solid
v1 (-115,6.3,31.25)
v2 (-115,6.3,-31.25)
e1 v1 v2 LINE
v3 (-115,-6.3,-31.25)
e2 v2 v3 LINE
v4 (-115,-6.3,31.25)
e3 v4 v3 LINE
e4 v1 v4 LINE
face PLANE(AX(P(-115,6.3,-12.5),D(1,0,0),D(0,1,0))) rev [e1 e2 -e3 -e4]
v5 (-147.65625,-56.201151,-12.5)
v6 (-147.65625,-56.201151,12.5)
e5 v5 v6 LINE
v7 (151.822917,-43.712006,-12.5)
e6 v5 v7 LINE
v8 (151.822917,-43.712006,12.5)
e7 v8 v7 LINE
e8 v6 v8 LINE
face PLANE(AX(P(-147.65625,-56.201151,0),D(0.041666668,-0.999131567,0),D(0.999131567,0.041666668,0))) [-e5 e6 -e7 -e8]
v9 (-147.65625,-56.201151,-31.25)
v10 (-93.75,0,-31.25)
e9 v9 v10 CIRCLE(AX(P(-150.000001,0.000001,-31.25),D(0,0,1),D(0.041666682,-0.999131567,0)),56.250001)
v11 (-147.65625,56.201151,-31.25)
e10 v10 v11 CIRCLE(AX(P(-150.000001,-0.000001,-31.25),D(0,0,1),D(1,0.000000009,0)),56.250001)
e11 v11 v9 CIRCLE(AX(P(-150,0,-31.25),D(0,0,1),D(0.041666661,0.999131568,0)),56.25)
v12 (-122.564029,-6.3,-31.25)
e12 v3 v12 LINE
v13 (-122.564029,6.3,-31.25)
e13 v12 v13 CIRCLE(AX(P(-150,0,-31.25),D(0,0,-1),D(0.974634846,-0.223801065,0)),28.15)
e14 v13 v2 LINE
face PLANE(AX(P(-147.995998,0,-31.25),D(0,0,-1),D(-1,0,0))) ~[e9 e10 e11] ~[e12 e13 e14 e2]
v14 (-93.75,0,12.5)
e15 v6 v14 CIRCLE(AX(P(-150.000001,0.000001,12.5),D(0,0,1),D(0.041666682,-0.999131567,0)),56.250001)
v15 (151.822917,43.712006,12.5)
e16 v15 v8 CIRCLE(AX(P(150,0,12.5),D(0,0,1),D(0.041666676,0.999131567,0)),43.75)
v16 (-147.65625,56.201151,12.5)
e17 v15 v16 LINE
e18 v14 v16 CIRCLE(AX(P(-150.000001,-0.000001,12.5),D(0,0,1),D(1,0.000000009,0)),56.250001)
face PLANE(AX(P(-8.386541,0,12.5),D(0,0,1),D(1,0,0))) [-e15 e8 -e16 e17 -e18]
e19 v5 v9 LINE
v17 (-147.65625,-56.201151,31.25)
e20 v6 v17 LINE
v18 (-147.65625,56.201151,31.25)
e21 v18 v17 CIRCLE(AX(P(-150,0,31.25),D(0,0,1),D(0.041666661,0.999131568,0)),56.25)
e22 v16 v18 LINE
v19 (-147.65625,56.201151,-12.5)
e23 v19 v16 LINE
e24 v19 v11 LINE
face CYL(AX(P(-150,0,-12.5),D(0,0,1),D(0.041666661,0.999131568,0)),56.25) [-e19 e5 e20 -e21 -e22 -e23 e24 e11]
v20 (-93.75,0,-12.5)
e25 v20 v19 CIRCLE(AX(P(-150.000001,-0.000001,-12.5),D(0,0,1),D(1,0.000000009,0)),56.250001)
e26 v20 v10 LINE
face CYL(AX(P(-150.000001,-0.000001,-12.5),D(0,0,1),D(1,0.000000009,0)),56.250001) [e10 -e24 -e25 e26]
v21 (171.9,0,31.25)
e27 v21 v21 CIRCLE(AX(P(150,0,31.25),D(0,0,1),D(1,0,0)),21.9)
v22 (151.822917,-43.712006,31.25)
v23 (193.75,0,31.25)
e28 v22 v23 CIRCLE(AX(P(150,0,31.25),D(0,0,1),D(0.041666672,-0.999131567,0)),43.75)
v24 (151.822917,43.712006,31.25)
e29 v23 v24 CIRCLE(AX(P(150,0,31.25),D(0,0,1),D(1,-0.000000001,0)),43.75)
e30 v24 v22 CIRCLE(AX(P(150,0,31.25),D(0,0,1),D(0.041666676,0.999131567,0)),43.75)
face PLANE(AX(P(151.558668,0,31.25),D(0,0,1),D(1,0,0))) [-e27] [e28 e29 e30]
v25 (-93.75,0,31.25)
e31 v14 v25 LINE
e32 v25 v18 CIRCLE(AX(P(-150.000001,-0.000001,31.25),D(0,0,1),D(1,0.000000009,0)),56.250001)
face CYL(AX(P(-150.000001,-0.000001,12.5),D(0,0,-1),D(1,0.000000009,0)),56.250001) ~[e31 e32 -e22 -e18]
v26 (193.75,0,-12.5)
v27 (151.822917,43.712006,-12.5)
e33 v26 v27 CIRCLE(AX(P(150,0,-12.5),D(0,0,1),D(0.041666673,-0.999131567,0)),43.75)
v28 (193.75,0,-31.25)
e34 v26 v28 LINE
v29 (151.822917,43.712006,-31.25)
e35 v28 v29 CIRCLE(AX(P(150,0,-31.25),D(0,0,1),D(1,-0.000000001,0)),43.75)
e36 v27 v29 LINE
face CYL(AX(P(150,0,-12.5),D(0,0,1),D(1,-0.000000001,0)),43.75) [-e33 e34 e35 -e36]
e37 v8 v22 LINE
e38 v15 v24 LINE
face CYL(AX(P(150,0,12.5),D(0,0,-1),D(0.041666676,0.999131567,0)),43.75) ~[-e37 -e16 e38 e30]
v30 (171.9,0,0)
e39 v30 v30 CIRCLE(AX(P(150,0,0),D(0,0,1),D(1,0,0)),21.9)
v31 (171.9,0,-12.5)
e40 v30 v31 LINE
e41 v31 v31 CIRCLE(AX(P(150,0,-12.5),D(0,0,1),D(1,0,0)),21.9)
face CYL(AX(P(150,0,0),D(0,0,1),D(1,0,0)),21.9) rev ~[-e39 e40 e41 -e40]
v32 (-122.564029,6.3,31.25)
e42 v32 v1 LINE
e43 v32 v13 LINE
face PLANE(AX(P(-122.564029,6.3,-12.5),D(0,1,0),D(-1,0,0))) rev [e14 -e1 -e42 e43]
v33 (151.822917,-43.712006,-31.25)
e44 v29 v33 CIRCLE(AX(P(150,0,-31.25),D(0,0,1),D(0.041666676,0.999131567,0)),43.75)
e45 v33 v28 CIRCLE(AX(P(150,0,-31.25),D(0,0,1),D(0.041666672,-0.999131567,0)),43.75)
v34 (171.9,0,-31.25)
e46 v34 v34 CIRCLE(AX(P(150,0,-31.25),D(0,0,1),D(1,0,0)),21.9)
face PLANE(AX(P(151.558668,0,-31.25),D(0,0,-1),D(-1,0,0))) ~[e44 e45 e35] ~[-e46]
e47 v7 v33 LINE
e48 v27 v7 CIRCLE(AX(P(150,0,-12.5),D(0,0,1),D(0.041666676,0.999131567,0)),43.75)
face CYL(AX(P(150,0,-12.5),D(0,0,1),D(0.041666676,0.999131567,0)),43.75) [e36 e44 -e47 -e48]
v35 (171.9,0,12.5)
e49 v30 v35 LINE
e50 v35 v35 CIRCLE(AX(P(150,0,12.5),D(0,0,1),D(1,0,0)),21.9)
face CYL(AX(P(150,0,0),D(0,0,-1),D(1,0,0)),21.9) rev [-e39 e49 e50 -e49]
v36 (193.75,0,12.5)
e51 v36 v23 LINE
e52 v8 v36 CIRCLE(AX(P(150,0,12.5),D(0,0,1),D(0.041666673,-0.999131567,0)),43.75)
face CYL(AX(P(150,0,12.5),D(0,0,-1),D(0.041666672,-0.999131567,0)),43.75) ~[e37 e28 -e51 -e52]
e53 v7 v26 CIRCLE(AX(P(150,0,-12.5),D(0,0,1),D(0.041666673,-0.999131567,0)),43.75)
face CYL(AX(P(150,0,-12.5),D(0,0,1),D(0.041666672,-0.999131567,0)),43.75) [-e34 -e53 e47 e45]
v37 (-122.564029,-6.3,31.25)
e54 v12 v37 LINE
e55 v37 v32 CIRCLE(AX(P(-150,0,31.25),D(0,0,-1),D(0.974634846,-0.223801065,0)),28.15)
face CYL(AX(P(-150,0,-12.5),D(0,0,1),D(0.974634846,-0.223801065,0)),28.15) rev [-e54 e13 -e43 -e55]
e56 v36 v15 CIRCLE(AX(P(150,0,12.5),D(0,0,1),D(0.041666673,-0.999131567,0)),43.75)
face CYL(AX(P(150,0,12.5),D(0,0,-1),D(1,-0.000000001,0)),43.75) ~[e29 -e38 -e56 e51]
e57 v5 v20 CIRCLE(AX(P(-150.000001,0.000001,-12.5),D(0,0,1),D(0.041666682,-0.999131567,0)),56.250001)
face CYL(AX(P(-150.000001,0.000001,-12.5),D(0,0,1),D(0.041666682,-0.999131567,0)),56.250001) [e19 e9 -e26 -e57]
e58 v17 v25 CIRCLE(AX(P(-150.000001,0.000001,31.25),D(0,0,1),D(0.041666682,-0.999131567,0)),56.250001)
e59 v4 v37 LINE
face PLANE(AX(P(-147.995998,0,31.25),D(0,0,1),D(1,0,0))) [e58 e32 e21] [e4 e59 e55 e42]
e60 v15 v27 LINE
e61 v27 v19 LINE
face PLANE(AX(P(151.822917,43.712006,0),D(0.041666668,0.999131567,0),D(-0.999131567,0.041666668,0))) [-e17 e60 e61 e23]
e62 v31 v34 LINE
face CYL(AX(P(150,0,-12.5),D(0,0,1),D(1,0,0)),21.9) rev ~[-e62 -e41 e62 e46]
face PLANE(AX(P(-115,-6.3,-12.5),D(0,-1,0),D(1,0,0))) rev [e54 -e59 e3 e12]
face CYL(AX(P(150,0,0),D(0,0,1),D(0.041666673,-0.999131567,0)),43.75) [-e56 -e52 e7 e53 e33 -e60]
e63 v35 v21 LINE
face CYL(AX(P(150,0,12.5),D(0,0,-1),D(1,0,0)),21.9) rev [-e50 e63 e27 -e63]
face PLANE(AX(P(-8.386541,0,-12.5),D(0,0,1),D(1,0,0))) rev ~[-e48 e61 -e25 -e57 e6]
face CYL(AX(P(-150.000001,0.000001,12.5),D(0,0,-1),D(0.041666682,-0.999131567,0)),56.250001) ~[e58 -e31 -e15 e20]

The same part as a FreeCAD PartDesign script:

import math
import FreeCAD as App
import Part
import Sketcher
from FreeCAD import Vector
Q = App.Units.Quantity

doc = App.newDocument("Part")
body = doc.addObject("PartDesign::Body", "Body")

# Sketch on XY plane
sketch1 = doc.addObject("Sketcher::SketchObject", "Sketch")
body.addObject(sketch1)
sketch1.AttachmentSupport = (doc.XY_Plane, [""])
sketch1.MapMode = "FlatFace"
sketch1.addGeometry([
    Part.LineSegment(Vector(152, 44, 0), Vector(-148, 56, 0)),  # 0
    Part.ArcOfCircle(Part.Circle(Vector(-150, 0, 0), Vector(0, 0, 1), 56), math.radians(88), math.radians(272)),  # 1
    Part.LineSegment(Vector(-148, -56, 0), Vector(152, -44, 0)),  # 2
    Part.ArcOfCircle(Part.Circle(Vector(150, 0, 0), Vector(0, 0, 1), 44), math.radians(-88), math.radians(88)),  # 3
    Part.LineSegment(Vector(-115, -6, 0), Vector(-123, -6, 0)),  # 4
    Part.ArcOfCircle(Part.Circle(Vector(-150, 0, 0), Vector(0, 0, 1), 28), math.radians(13), math.radians(347)),  # 5
    Part.LineSegment(Vector(-123, 6, 0), Vector(-115, 6, 0)),  # 6
    Part.LineSegment(Vector(-115, 6, 0), Vector(-115, -6, 0)),  # 7
    Part.Circle(Vector(150, 0, 0), Vector(0, 0, 1), 22),  # 8
], False)
sketch1.addConstraint([
    Sketcher.Constraint("Tangent", 0, 2, 1, 1),
    Sketcher.Constraint("Tangent", 1, 2, 2, 1),
    Sketcher.Constraint("Tangent", 2, 2, 3, 1),
    Sketcher.Constraint("Tangent", 3, 2, 0, 1),
    Sketcher.Constraint("Coincident", 4, 2, 5, 2),
    Sketcher.Constraint("Coincident", 5, 1, 6, 1),
    Sketcher.Constraint("Coincident", 6, 2, 7, 1),
    Sketcher.Constraint("Coincident", 7, 2, 4, 1),
    Sketcher.Constraint("Horizontal", 4),
    Sketcher.Constraint("Horizontal", 6),
    Sketcher.Constraint("Vertical", 7),
    Sketcher.Constraint("Coincident", 5, 3, 1, 3),
    Sketcher.Constraint("Coincident", 8, 3, 3, 3),
    Sketcher.Constraint("Symmetric", 1, 3, 3, 3, -1, 1),
    Sketcher.Constraint("Symmetric", 4, 2, 5, 1, -1),
    Sketcher.Constraint("Diameter", 8, Q("43.8 mm")),
    Sketcher.Constraint("Radius", 1, Q("56.25 mm")),
    Sketcher.Constraint("Radius", 3, Q("43.75 mm")),
    Sketcher.Constraint("Radius", 5, Q("28.15 mm")),
    Sketcher.Constraint("DistanceY", 7, 2, 7, 1, Q("12.6 mm")),
    Sketcher.Constraint("DistanceX", 1, 3, -1, 1, Q("150 mm")),
    Sketcher.Constraint("DistanceX", 6, 2, -1, 1, Q("115 mm")),
])
pad1 = doc.addObject("PartDesign::Pad", "Pad")
body.addObject(pad1)
pad1.Profile = sketch1
pad1.Type = "TwoLengths"
pad1.Length = 12.5
pad1.Length2 = 12.5

# Sketch on XY plane
sketch2 = doc.addObject("Sketcher::SketchObject", "Sketch001")
body.addObject(sketch2)
sketch2.AttachmentSupport = (doc.XY_Plane, [""])
sketch2.MapMode = "FlatFace"
sketch2.AttachmentOffset = App.Placement(Vector(0, 0, 12.5), App.Rotation())
sketch2.addGeometry([
    Part.ArcOfCircle(Part.Circle(Vector(-150, 0, 0), Vector(0, 0, 1), 56), math.radians(-88), math.radians(0)),  # 0
    Part.ArcOfCircle(Part.Circle(Vector(-150, 0, 0), Vector(0, 0, 1), 56), math.radians(0), math.radians(88)),  # 1
    Part.ArcOfCircle(Part.Circle(Vector(-150, 0, 0), Vector(0, 0, 1), 56), math.radians(88), math.radians(272)),  # 2
    Part.LineSegment(Vector(-115, -6, 0), Vector(-123, -6, 0)),  # 3
    Part.ArcOfCircle(Part.Circle(Vector(-150, 0, 0), Vector(0, 0, 1), 28), math.radians(13), math.radians(347)),  # 4
    Part.LineSegment(Vector(-123, 6, 0), Vector(-115, 6, 0)),  # 5
    Part.LineSegment(Vector(-115, 6, 0), Vector(-115, -6, 0)),  # 6
    Part.ArcOfCircle(Part.Circle(Vector(150, 0, 0), Vector(0, 0, 1), 44), math.radians(0), math.radians(88)),  # 7
    Part.ArcOfCircle(Part.Circle(Vector(150, 0, 0), Vector(0, 0, 1), 44), math.radians(88), math.radians(272)),  # 8
    Part.ArcOfCircle(Part.Circle(Vector(150, 0, 0), Vector(0, 0, 1), 44), math.radians(-88), math.radians(0)),  # 9
    Part.Circle(Vector(150, 0, 0), Vector(0, 0, 1), 22),  # 10
], False)
sketch2.addConstraint([
    Sketcher.Constraint("Tangent", 0, 2, 1, 1),
    Sketcher.Constraint("Tangent", 1, 2, 2, 1),
    Sketcher.Constraint("Tangent", 2, 2, 0, 1),
    Sketcher.Constraint("Coincident", 3, 2, 4, 2),
    Sketcher.Constraint("Coincident", 4, 1, 5, 1),
    Sketcher.Constraint("Coincident", 5, 2, 6, 1),
    Sketcher.Constraint("Coincident", 6, 2, 3, 1),
    Sketcher.Constraint("Tangent", 7, 2, 8, 1),
    Sketcher.Constraint("Tangent", 8, 2, 9, 1),
    Sketcher.Constraint("Tangent", 9, 2, 7, 1),
    Sketcher.Constraint("Horizontal", 3),
    Sketcher.Constraint("Horizontal", 5),
    Sketcher.Constraint("Vertical", 6),
    Sketcher.Constraint("Coincident", 4, 3, 0, 3),
    Sketcher.Constraint("Coincident", 10, 3, 7, 3),
    Sketcher.Constraint("Symmetric", 0, 3, 7, 3, -1, 1),
    Sketcher.Constraint("Symmetric", 1, 2, 2, 2, -1),
    Sketcher.Constraint("PointOnObject", 0, 2, -1),
    Sketcher.Constraint("PointOnObject", 9, 2, -1),
    Sketcher.Constraint("Vertical", 3, 2, 4, 1),
    Sketcher.Constraint("Vertical", 7, 2, 8, 2),
    Sketcher.Constraint("Diameter", 10, Q("43.8 mm")),
    Sketcher.Constraint("Radius", 0, Q("56.250001 mm")),
    Sketcher.Constraint("Radius", 4, Q("28.15 mm")),
    Sketcher.Constraint("Radius", 7, Q("43.75 mm")),
    Sketcher.Constraint("DistanceY", 6, 2, 6, 1, Q("12.6 mm")),
    Sketcher.Constraint("DistanceX", 0, 3, -1, 1, Q("150.000001 mm")),
    Sketcher.Constraint("DistanceX", 5, 2, -1, 1, Q("115 mm")),
    Sketcher.Constraint("DistanceX", 1, 2, -1, 1, Q("147.65625 mm")),
    Sketcher.Constraint("DistanceY", 8, 2, 7, 2, Q("87.424012 mm")),
])
pad2 = doc.addObject("PartDesign::Pad", "Pad001")
body.addObject(pad2)
pad2.Profile = sketch2
pad2.Length = 18.75
body2 = doc.addObject("PartDesign::Body", "Body001")
doc.recompute()

body2.BaseFeature = body
doc.recompute()

mirroring = doc.addObject("Part::Mirroring", "Mirroring")
mirroring.Source = body
mirroring.Base = Vector(0, 0, 0)
mirroring.Normal = Vector(0, 0, 1)
body3 = doc.addObject("PartDesign::Body", "Body002")
body3.BaseFeature = mirroring
boolean = doc.addObject("PartDesign::Boolean", "Boolean")
body2.addObject(boolean)
boolean.Type = "Fuse"
boolean.addObjects([body3])
doc.recompute()
mirroring.Visibility = False

doc.recompute()
